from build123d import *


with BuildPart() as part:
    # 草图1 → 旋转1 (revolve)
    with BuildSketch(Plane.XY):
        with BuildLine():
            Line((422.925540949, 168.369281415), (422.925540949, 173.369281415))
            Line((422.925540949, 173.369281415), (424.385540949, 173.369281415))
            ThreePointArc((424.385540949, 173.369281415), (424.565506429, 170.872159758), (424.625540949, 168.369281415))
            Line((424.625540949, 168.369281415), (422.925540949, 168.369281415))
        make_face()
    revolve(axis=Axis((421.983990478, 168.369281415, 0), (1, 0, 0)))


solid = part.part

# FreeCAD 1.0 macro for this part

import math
import FreeCAD as App
import Part
import Sketcher
from FreeCAD import Vector
Q = App.Units.Quantity

doc = App.newDocument("Part")
body = doc.addObject("PartDesign::Body", "Body")

sketch1 = doc.addObject("Sketcher::SketchObject", "Sketch")
body.addObject(sketch1)
sketch1.AttachmentSupport = (doc.XY_Plane, [""])
sketch1.MapMode = "FlatFace"
sketch1.addGeometry([
    Part.LineSegment(Vector(422.9, 173.4, 0), Vector(422.9, 168.4, 0)),
    Part.LineSegment(Vector(422.9, 168.4, 0), Vector(424.6, 168.4, 0)),
    Part.ArcOfCircle(Part.Circle(Vector(372.4, 168.4, 0), Vector(0, 0, 1), 52.2), math.radians(0), math.radians(5.5)),
    Part.LineSegment(Vector(424.4, 173.4, 0), Vector(422.9, 173.4, 0)),
], False)
sketch1.addGeometry(Part.LineSegment(Vector(372.4, 168.4, 0), Vector(424.6, 168.4, 0)), True)
sketch1.addConstraint([
    Sketcher.Constraint("Coincident", 0, 2, 1, 1),
    Sketcher.Constraint("Coincident", 1, 2, 2, 1),
    Sketcher.Constraint("Coincident", 2, 2, 3, 1),
    Sketcher.Constraint("Coincident", 3, 2, 0, 1),
    Sketcher.Constraint("Vertical", 0),
    Sketcher.Constraint("Horizontal", 1),
    Sketcher.Constraint("Horizontal", 3),
    Sketcher.Constraint("Horizontal", 4),
    Sketcher.Constraint("Coincident", 4, 1, 2, 3),
    Sketcher.Constraint("Coincident", 4, 2, 1, 2),
    Sketcher.Constraint("DistanceY", 0, 2, 0, 1, Q("5 mm")),
    Sketcher.Constraint("DistanceX", 1, 1, 1, 2, Q("1.7 mm")),
    Sketcher.Constraint("DistanceX", 3, 2, 3, 1, Q("1.46 mm")),
    Sketcher.Constraint("DistanceY", -1, 1, 2, 3, Q("168.369281 mm")),
    Sketcher.Constraint("DistanceX", -1, 1, 0, 2, Q("422.925541 mm")),
])
revolution = doc.addObject("PartDesign::Revolution", "Revolution")
body.addObject(revolution)
revolution.Profile = sketch1
revolution.ReferenceAxis = (sketch1, ["Axis0"])
revolution.Angle = 360

doc.recompute()
